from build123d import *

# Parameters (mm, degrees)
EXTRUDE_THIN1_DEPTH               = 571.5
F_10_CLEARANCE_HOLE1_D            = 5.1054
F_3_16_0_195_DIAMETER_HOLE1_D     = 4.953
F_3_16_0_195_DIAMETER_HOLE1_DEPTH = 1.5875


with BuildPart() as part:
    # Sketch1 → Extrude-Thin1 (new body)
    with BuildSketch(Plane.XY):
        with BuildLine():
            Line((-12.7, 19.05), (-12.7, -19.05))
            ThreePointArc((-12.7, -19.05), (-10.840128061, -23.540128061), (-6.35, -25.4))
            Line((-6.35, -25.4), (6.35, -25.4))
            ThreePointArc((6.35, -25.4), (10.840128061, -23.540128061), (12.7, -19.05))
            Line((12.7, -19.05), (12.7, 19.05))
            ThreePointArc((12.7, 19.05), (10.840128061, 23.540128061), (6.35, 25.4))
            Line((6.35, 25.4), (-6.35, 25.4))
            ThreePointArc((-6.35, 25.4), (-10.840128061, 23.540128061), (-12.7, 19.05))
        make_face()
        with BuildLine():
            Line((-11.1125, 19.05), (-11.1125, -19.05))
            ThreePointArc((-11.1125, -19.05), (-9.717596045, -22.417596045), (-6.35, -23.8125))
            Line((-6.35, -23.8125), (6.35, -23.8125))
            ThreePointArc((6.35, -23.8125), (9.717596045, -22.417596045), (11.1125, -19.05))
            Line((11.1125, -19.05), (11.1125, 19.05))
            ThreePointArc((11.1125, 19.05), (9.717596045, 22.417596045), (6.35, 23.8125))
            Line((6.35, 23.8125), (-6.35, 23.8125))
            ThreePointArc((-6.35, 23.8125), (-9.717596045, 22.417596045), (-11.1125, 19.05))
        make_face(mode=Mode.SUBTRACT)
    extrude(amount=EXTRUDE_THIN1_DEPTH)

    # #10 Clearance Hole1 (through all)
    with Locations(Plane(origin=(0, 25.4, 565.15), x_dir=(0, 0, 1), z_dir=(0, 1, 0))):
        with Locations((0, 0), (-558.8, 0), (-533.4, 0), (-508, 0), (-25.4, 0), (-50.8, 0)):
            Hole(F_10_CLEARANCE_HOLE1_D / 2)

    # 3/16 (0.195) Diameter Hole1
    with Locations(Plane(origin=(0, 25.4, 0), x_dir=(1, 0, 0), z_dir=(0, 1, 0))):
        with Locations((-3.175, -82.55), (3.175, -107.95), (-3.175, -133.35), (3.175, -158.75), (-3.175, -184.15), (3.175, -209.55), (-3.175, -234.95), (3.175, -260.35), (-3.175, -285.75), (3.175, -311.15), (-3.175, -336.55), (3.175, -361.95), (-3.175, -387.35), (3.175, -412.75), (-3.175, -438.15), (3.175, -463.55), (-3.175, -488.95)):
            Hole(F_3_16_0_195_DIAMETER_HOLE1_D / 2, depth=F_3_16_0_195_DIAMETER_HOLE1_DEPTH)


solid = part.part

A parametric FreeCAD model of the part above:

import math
import FreeCAD as App
import Part
import Sketcher

V = App.Vector
Q = App.Units.Quantity

doc = App.newDocument("Part")
body = doc.addObject("PartDesign::Body", "Body")

# Sketch on XY plane
sketch1 = body.newObject("Sketcher::SketchObject", "Sketch")
sketch1.AttachmentSupport = (doc.getObject("XY_Plane"), [""])
sketch1.MapMode = "FlatFace"
sketch1.addGeometry([
    Part.LineSegment(V(-12.7, 19.1, 0), V(-12.7, -19.1, 0)),  # 0
    Part.ArcOfCircle(Part.Circle(V(-6.4, -19.1, 0), V(0, 0, 1), 6.3), math.radians(180), math.radians(270)),  # 1
    Part.LineSegment(V(-6.3, -25.4, 0), V(6.3, -25.4, 0)),  # 2
    Part.ArcOfCircle(Part.Circle(V(6.4, -19.1, 0), V(0, 0, 1), 6.3), math.radians(-90), math.radians(0)),  # 3
    Part.LineSegment(V(12.7, -19.1, 0), V(12.7, 19.1, 0)),  # 4
    Part.ArcOfCircle(Part.Circle(V(6.4, 19.1, 0), V(0, 0, 1), 6.3), math.radians(0), math.radians(90)),  # 5
    Part.LineSegment(V(6.3, 25.4, 0), V(-6.3, 25.4, 0)),  # 6
    Part.ArcOfCircle(Part.Circle(V(-6.4, 19.1, 0), V(0, 0, 1), 6.3), math.radians(90), math.radians(180)),  # 7
    Part.LineSegment(V(-11.1, -19.1, 0), V(-11.1, 19.1, 0)),  # 8
    Part.ArcOfCircle(Part.Circle(V(-6.3, 19, 0), V(0, 0, 1), 4.8), math.radians(90), math.radians(180)),  # 9
    Part.LineSegment(V(-6.3, 23.8, 0), V(6.3, 23.8, 0)),  # 10
    Part.ArcOfCircle(Part.Circle(V(6.3, 19, 0), V(0, 0, 1), 4.8), math.radians(0), math.radians(90)),  # 11
    Part.LineSegment(V(11.1, 19.1, 0), V(11.1, -19.1, 0)),  # 12
    Part.ArcOfCircle(Part.Circle(V(6.3, -19, 0), V(0, 0, 1), 4.8), math.radians(-90), math.radians(0)),  # 13
    Part.LineSegment(V(6.3, -23.8, 0), V(-6.3, -23.8, 0)),  # 14
    Part.ArcOfCircle(Part.Circle(V(-6.3, -19, 0), V(0, 0, 1), 4.8), math.radians(-180), math.radians(-90)),  # 15
], False)
sketch1.addConstraint([
    Sketcher.Constraint("Tangent", 0, 2, 1, 1),
    Sketcher.Constraint("Tangent", 1, 2, 2, 1),
    Sketcher.Constraint("Tangent", 2, 2, 3, 1),
    Sketcher.Constraint("Tangent", 3, 2, 4, 1),
    Sketcher.Constraint("Tangent", 4, 2, 5, 1),
    Sketcher.Constraint("Tangent", 5, 2, 6, 1),
    Sketcher.Constraint("Tangent", 6, 2, 7, 1),
    Sketcher.Constraint("Tangent", 7, 2, 0, 1),
    Sketcher.Constraint("Tangent", 8, 2, 9, 2),
    Sketcher.Constraint("Tangent", 9, 1, 10, 1),
    Sketcher.Constraint("Tangent", 10, 2, 11, 2),
    Sketcher.Constraint("Tangent", 11, 1, 12, 1),
    Sketcher.Constraint("Tangent", 12, 2, 13, 2),
    Sketcher.Constraint("Tangent", 13, 1, 14, 1),
    Sketcher.Constraint("Tangent", 14, 2, 15, 2),
    Sketcher.Constraint("Tangent", 15, 1, 8, 1),
    Sketcher.Constraint("Vertical", 0),
    Sketcher.Constraint("Horizontal", 2),
    Sketcher.Constraint("Vertical", 4),
    Sketcher.Constraint("Horizontal", 6),
    Sketcher.Constraint("Vertical", 8),
    Sketcher.Constraint("Horizontal", 10),
    Sketcher.Constraint("Vertical", 12),
    Sketcher.Constraint("Horizontal", 14),
    Sketcher.Constraint("Coincident", 9, 3, 7, 3),
    Sketcher.Constraint("Coincident", 11, 3, 5, 3),
    Sketcher.Constraint("Coincident", 13, 3, 3, 3),
    Sketcher.Constraint("Equal", 1, 3),
    Sketcher.Constraint("Equal", 3, 5),
    Sketcher.Constraint("Equal", 5, 7),
    Sketcher.Constraint("Equal", 13, 15),
    Sketcher.Constraint("Symmetric", 1, 3, 5, 3, -1, 1),
    Sketcher.Constraint("Radius", 1, Q("0.25 in")),
    Sketcher.Constraint("DistanceX", 2, 1, 2, 2, Q("0.5 in")),
    Sketcher.Constraint("DistanceY", 0, 2, 0, 1, Q("1.5 in")),
    Sketcher.Constraint("Radius", 9, Q("0.1875 in")),
])
pad1 = body.newObject("PartDesign::Pad", "Pad")
pad1.Profile = sketch1
pad1.Length = Q("22.5 in")

# Sketch on XZ plane
sketch2 = body.newObject("Sketcher::SketchObject", "Sketch001")
sketch2.AttachmentSupport = (doc.getObject("XZ_Plane"), [""])
sketch2.MapMode = "FlatFace"
sketch2.AttachmentOffset = App.Placement(V(0, 0, -1 * 25.4), App.Rotation())
sketch2.addGeometry([
    Part.Circle(V(0, 565.1, 0), V(0, 0, 1), 2.6),  # 0
    Part.Circle(V(0, 6.3, 0), V(0, 0, 1), 2.6),  # 1
    Part.Circle(V(0, 31.8, 0), V(0, 0, 1), 2.6),  # 2
    Part.Circle(V(0, 57.1, 0), V(0, 0, 1), 2.6),  # 3
    Part.Circle(V(0, 539.8, 0), V(0, 0, 1), 2.6),  # 4
    Part.Circle(V(0, 514.4, 0), V(0, 0, 1), 2.6),  # 5
], False)
sketch2.addConstraint([
    Sketcher.Constraint("Equal", 0, 1),
    Sketcher.Constraint("Equal", 1, 2),
    Sketcher.Constraint("Equal", 2, 3),
    Sketcher.Constraint("Equal", 3, 4),
    Sketcher.Constraint("Equal", 4, 5),
    Sketcher.Constraint("PointOnObject", 0, 3, -2),
    Sketcher.Constraint("PointOnObject", 1, 3, -2),
    Sketcher.Constraint("PointOnObject", 2, 3, -2),
    Sketcher.Constraint("PointOnObject", 3, 3, -2),
    Sketcher.Constraint("PointOnObject", 4, 3, -2),
    Sketcher.Constraint("PointOnObject", 5, 3, -2),
    Sketcher.Constraint("Diameter", 0, Q("0.201 in")),
    Sketcher.Constraint("DistanceY", 1, 3, 0, 3, Q("22 in")),
    Sketcher.Constraint("DistanceY", 1, 3, 2, 3, Q("1 in")),
    Sketcher.Constraint("DistanceY", 2, 3, 3, 3, Q("1 in")),
    Sketcher.Constraint("DistanceY", 4, 3, 0, 3, Q("1 in")),
    Sketcher.Constraint("DistanceY", 5, 3, 4, 3, Q("1 in")),
    Sketcher.Constraint("DistanceY", -1, 1, 0, 3, Q("22.25 in")),
])
doc.recompute()
hole = body.newObject("PartDesign::Hole", "Hole")
hole.Profile = sketch2
hole.ThreadType = "None"
hole.Diameter = Q("0.201 in")
hole.DepthType = "ThroughAll"
hole.Reversed = True

# Sketch on XZ plane
sketch3 = body.newObject("Sketcher::SketchObject", "Sketch002")
sketch3.AttachmentSupport = (doc.getObject("XZ_Plane"), [""])
sketch3.MapMode = "FlatFace"
sketch3.AttachmentOffset = App.Placement(V(0, 0, -1 * 25.4), App.Rotation())
sketch3.addGeometry([
    Part.Circle(V(-3.2, 82.5, 0), V(0, 0, 1), 2.5),  # 0
    Part.Circle(V(3.2, 108, 0), V(0, 0, 1), 2.5),  # 1
    Part.Circle(V(-3.2, 133.3, 0), V(0, 0, 1), 2.5),  # 2
    Part.Circle(V(3.2, 158.8, 0), V(0, 0, 1), 2.5),  # 3
    Part.Circle(V(-3.2, 184.2, 0), V(0, 0, 1), 2.5),  # 4
    Part.Circle(V(3.2, 209.6, 0), V(0, 0, 1), 2.5),  # 5
    Part.Circle(V(-3.2, 234.9, 0), V(0, 0, 1), 2.5),  # 6
    Part.Circle(V(3.2, 260.4, 0), V(0, 0, 1), 2.5),  # 7
    Part.Circle(V(-3.2, 285.8, 0), V(0, 0, 1), 2.5),  # 8
    Part.Circle(V(3.2, 311.1, 0), V(0, 0, 1), 2.5),  # 9
    Part.Circle(V(-3.2, 336.6, 0), V(0, 0, 1), 2.5),  # 10
    Part.Circle(V(3.2, 361.9, 0), V(0, 0, 1), 2.5),  # 11
    Part.Circle(V(-3.2, 387.4, 0), V(0, 0, 1), 2.5),  # 12
    Part.Circle(V(3.2, 412.8, 0), V(0, 0, 1), 2.5),  # 13
    Part.Circle(V(-3.2, 438.1, 0), V(0, 0, 1), 2.5),  # 14
    Part.Circle(V(3.2, 463.6, 0), V(0, 0, 1), 2.5),  # 15
    Part.Circle(V(-3.2, 488.9, 0), V(0, 0, 1), 2.5),  # 16
], False)
sketch3.addConstraint([
    Sketcher.Constraint("Equal", 0, 1),
    Sketcher.Constraint("Equal", 1, 2),
    Sketcher.Constraint("Equal", 2, 3),
    Sketcher.Constraint("Equal", 3, 4),
    Sketcher.Constraint("Equal", 4, 5),
    Sketcher.Constraint("Equal", 5, 6),
    Sketcher.Constraint("Equal", 6, 7),
    Sketcher.Constraint("Equal", 7, 8),
    Sketcher.Constraint("Equal", 8, 9),
    Sketcher.Constraint("Equal", 9, 10),
    Sketcher.Constraint("Equal", 10, 11),
    Sketcher.Constraint("Equal", 11, 12),
    Sketcher.Constraint("Equal", 12, 13),
    Sketcher.Constraint("Equal", 13, 14),
    Sketcher.Constraint("Equal", 14, 15),
    Sketcher.Constraint("Equal", 15, 16),
    Sketcher.Constraint("Vertical", 0, 3, 2, 3),
    Sketcher.Constraint("Vertical", 1, 3, 3, 3),
    Sketcher.Constraint("Vertical", 2, 3, 4, 3),
    Sketcher.Constraint("Vertical", 3, 3, 5, 3),
    Sketcher.Constraint("Vertical", 4, 3, 6, 3),
    Sketcher.Constraint("Vertical", 5, 3, 7, 3),
    Sketcher.Constraint("Vertical", 6, 3, 8, 3),
    Sketcher.Constraint("Vertical", 7, 3, 9, 3),
    Sketcher.Constraint("Vertical", 8, 3, 10, 3),
    Sketcher.Constraint("Vertical", 9, 3, 11, 3),
    Sketcher.Constraint("Vertical", 10, 3, 12, 3),
    Sketcher.Constraint("Vertical", 11, 3, 13, 3),
    Sketcher.Constraint("Vertical", 12, 3, 14, 3),
    Sketcher.Constraint("Vertical", 13, 3, 15, 3),
    Sketcher.Constraint("Vertical", 14, 3, 16, 3),
    Sketcher.Constraint("Diameter", 0, Q("0.195 in")),
    Sketcher.Constraint("DistanceY", 0, 3, 1, 3, Q("1 in")),
    Sketcher.Constraint("DistanceY", 1, 3, 2, 3, Q("1 in")),
    Sketcher.Constraint("DistanceY", 2, 3, 3, 3, Q("1 in")),
    Sketcher.Constraint("DistanceY", 3, 3, 4, 3, Q("1 in")),
    Sketcher.Constraint("DistanceY", 4, 3, 5, 3, Q("1 in")),
    Sketcher.Constraint("DistanceY", 5, 3, 6, 3, Q("1 in")),
    Sketcher.Constraint("DistanceY", 6, 3, 7, 3, Q("1 in")),
    Sketcher.Constraint("DistanceY", 7, 3, 8, 3, Q("1 in")),
    Sketcher.Constraint("DistanceY", 8, 3, 9, 3, Q("1 in")),
    Sketcher.Constraint("DistanceY", 9, 3, 10, 3, Q("1 in")),
    Sketcher.Constraint("DistanceY", 10, 3, 11, 3, Q("1 in")),
    Sketcher.Constraint("DistanceY", 11, 3, 12, 3, Q("1 in")),
    Sketcher.Constraint("DistanceY", 12, 3, 13, 3, Q("1 in")),
    Sketcher.Constraint("DistanceY", 13, 3, 14, 3, Q("1 in")),
    Sketcher.Constraint("DistanceY", 14, 3, 15, 3, Q("1 in")),
    Sketcher.Constraint("DistanceY", 15, 3, 16, 3, Q("1 in")),
    Sketcher.Constraint("DistanceY", -1, 1, 0, 3, Q("3.25 in")),
    Sketcher.Constraint("DistanceX", 0, 3, 1, 3, Q("0.25 in")),
    Sketcher.Constraint("DistanceX", 0, 3, -1, 1, Q("0.125 in")),
])
doc.recompute()
hole2 = body.newObject("PartDesign::Hole", "Hole001")
hole2.Profile = sketch3
hole2.ThreadType = "None"
hole2.Diameter = Q("0.195 in")
hole2.DepthType = "Dimension"
hole2.Depth = Q("0.0625 in")
hole2.DrillPoint = "Flat"
hole2.Reversed = True

doc.recompute()
